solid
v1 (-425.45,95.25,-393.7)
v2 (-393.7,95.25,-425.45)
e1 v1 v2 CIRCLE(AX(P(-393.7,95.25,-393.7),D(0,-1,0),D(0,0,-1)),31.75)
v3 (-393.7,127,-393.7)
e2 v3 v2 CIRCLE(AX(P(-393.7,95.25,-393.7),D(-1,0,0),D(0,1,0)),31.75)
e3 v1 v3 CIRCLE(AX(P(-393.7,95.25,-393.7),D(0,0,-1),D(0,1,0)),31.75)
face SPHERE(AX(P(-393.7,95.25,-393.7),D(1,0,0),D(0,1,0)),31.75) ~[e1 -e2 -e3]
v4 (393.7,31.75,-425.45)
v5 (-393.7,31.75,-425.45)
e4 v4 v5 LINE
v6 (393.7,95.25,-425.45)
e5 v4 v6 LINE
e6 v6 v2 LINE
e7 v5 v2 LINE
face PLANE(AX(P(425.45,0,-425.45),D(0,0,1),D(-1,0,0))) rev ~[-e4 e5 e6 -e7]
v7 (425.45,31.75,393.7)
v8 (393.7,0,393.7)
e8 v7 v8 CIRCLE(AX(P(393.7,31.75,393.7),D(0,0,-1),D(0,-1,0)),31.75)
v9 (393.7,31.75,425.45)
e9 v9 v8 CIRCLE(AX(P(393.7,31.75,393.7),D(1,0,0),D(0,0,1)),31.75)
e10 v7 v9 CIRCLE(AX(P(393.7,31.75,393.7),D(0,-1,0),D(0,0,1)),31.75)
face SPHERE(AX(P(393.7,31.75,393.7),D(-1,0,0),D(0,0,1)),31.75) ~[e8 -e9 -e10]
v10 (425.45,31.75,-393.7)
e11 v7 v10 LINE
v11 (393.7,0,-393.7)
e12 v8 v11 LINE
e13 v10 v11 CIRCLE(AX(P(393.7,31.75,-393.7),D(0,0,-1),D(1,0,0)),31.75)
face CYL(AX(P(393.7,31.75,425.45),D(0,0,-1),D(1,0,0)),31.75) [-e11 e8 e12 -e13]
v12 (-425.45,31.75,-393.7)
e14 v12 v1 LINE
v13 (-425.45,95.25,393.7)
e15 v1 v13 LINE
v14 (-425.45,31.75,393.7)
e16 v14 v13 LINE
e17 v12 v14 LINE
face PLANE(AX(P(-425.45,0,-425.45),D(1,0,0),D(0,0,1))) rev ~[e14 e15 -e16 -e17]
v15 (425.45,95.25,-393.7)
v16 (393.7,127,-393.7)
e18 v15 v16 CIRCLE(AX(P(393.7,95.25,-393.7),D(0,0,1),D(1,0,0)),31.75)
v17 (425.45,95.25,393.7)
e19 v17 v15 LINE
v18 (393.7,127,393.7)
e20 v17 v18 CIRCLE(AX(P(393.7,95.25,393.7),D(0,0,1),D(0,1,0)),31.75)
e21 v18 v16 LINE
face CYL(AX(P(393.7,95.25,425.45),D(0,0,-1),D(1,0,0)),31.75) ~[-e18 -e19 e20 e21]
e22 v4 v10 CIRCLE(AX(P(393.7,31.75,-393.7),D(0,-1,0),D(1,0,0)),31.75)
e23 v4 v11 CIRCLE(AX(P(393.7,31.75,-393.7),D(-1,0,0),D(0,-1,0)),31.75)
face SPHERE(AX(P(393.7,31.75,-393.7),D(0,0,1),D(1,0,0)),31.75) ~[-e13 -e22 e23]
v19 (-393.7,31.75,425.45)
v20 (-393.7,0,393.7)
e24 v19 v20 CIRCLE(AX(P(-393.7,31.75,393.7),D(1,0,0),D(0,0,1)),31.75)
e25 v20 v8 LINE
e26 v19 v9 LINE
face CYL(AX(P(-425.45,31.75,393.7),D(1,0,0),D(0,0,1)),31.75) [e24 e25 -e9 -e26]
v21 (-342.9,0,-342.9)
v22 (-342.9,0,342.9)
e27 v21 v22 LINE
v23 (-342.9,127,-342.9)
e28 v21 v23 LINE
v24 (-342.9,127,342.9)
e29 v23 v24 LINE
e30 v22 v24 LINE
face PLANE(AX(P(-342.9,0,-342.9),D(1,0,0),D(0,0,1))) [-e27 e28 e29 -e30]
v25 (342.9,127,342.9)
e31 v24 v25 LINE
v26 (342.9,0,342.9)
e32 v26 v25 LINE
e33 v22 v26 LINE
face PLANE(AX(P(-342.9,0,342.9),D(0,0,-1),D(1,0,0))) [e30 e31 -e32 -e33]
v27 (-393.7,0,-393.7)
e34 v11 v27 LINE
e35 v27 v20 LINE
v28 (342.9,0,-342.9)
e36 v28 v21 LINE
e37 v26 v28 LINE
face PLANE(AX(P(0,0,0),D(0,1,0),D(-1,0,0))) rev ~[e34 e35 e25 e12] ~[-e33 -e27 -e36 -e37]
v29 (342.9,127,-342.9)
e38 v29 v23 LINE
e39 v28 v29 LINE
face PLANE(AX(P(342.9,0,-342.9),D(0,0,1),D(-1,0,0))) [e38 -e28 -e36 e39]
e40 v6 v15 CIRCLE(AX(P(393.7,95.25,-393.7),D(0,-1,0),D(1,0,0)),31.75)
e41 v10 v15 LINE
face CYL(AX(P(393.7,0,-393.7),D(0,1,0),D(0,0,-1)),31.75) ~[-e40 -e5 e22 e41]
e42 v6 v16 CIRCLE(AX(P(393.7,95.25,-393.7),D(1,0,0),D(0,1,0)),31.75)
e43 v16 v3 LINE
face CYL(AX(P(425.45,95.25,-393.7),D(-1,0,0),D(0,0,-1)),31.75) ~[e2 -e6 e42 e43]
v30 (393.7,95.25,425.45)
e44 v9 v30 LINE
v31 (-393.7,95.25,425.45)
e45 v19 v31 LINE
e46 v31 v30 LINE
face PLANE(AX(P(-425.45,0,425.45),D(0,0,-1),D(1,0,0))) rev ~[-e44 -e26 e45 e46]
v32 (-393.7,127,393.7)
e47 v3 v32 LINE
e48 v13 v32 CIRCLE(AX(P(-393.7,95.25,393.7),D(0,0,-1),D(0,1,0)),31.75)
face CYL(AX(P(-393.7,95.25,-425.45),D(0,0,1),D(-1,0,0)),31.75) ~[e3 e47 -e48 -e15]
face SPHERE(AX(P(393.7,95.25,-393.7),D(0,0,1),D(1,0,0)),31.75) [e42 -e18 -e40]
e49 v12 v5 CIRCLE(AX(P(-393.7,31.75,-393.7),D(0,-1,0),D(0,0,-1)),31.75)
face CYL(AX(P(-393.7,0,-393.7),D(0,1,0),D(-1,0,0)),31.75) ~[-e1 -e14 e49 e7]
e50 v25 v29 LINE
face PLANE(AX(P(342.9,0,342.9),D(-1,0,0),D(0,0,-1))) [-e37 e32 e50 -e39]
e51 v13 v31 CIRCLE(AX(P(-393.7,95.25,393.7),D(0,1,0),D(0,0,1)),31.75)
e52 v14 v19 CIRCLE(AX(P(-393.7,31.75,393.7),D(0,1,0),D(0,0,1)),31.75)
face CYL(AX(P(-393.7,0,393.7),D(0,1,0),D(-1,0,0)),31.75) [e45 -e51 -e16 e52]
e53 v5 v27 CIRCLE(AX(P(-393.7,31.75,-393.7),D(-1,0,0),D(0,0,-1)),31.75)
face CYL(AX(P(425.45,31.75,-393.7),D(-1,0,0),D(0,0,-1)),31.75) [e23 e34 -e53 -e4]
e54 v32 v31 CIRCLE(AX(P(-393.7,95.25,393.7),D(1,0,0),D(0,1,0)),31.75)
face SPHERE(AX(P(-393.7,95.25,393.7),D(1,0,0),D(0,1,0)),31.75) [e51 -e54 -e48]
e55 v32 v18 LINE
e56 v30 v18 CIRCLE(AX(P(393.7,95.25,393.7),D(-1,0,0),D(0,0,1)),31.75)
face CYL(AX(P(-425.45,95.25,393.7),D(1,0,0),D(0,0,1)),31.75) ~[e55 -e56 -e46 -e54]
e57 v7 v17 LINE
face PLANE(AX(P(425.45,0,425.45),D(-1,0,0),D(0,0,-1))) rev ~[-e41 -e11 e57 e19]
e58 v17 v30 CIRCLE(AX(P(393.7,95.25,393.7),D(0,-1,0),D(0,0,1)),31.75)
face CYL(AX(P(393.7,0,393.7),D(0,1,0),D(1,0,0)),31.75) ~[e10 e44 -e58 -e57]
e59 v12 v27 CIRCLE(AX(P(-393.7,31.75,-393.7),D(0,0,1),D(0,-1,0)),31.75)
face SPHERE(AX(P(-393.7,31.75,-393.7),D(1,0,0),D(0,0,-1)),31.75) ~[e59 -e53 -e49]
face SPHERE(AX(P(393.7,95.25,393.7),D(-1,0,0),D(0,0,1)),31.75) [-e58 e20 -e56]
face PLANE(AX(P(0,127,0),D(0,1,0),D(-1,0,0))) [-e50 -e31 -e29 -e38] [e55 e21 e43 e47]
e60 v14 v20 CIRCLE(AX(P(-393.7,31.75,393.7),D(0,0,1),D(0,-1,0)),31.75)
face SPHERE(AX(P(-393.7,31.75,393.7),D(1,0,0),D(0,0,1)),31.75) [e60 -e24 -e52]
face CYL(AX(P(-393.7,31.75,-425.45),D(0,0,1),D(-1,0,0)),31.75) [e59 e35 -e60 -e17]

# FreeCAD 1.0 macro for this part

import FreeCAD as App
import Part
import Sketcher

V = App.Vector
Q = App.Units.Quantity


def edges_at(feature, points):
    """Names of the edges that pass closest to the given points."""
    edges = feature.Shape.Edges
    near = lambda p: min(range(len(edges)), key=lambda i: edges[i].distToShape(Part.Vertex(*p))[0])
    return sorted({f"Edge{near(p) + 1}" for p in points})


def add_polygon(sketch, points):
    """Adds a closed chain of lines whose ends are joined by coincident constraints."""
    first, n = sketch.GeometryCount, len(points)
    for a, b in zip(points, points[1:] + points[:1]):
        sketch.addGeometry(Part.LineSegment(App.Vector(*a, 0), App.Vector(*b, 0)), False)
    for i in range(n):
        sketch.addConstraint(Sketcher.Constraint("Coincident", first + i, 2, first + (i + 1) % n, 1))

doc = App.newDocument("Part")
body = doc.addObject("PartDesign::Body", "Body")

sketch1 = body.newObject("Sketcher::SketchObject", "Sketch")
sketch1.AttachmentSupport = (doc.getObject("XZ_Plane"), [""])
sketch1.MapMode = "FlatFace"
add_polygon(sketch1, [(-425, -425), (-425, 425), (425, 425), (425, -425)])
add_polygon(sketch1, [(343, 343), (-343, 343), (-343, -343), (343, -343)])
sketch1.addConstraint([
    Sketcher.Constraint("Vertical", 0),
    Sketcher.Constraint("Horizontal", 1),
    Sketcher.Constraint("Vertical", 2),
    Sketcher.Constraint("Horizontal", 3),
    Sketcher.Constraint("Horizontal", 4),
    Sketcher.Constraint("Vertical", 5),
    Sketcher.Constraint("Horizontal", 6),
    Sketcher.Constraint("Vertical", 7),
    Sketcher.Constraint("Symmetric", 0, 2, 2, 2, -1, 1),
    Sketcher.Constraint("Symmetric", 4, 2, 6, 2, -1, 1),
    Sketcher.Constraint("Equal", 3, 0),
    Sketcher.Constraint("Equal", 6, 5),
    Sketcher.Constraint("DistanceX", 4, 2, 4, 1, Q("27 in")),
    Sketcher.Constraint("DistanceX", 0, 2, 4, 2, Q("3.25 in")),
])
pad1 = body.newObject("PartDesign::Pad", "Pad")
pad1.Profile = sketch1
pad1.Length = Q("5 in")
pad1.Reversed = True
doc.recompute()

fillet = body.newObject("PartDesign::Fillet", "Fillet")
fillet.Base = (pad1, edges_at(pad1, [
    (0, 127, 425.45),
    (0, 0, 425.45),
    (425.45, 63.5, 425.45),
    (425.45, 127, 0),
    (425.45, 0, 0),
    (425.45, 63.5, -425.45),
    (0, 127, -425.45),
    (-425.45, 127, 0),
    (-425.45, 63.5, 425.45),
    (0, 0, -425.45),
    (-425.45, 63.5, -425.45),
    (-425.45, 0, 0),
]))
fillet.Radius = Q("1.25 in")

doc.recompute()
